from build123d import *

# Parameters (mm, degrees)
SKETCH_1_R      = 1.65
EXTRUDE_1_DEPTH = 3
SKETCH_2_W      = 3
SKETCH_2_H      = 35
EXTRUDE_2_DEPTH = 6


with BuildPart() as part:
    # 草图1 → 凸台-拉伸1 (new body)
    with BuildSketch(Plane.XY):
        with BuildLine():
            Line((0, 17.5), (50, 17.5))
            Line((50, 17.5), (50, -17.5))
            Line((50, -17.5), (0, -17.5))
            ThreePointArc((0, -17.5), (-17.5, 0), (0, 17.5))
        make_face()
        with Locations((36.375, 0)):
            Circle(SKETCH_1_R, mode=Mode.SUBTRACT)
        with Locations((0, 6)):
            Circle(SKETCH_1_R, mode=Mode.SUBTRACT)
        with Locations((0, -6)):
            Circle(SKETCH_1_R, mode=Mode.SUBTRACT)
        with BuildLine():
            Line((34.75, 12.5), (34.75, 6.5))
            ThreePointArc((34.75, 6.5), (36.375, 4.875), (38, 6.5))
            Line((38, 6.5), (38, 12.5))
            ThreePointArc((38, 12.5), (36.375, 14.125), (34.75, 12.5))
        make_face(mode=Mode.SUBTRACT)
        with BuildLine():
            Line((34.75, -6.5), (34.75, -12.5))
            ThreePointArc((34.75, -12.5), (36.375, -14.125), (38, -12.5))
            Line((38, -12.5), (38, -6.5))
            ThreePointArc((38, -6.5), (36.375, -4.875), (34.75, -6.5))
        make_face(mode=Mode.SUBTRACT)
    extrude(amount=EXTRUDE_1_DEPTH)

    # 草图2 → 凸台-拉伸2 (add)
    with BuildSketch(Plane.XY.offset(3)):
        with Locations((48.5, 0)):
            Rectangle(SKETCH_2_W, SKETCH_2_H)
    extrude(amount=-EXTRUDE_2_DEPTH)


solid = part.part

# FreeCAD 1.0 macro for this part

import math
import FreeCAD as App
import Part
import Sketcher

V = App.Vector
Q = App.Units.Quantity

doc = App.newDocument("Part")
body = doc.addObject("PartDesign::Body", "Body")

# Sketch on XY plane
sketch1 = body.newObject("Sketcher::SketchObject", "Sketch")
sketch1.AttachmentSupport = (doc.getObject("XY_Plane"), [""])
sketch1.MapMode = "FlatFace"
sketch1.addGeometry([
    Part.LineSegment(V(50, 17.5, 0), V(0, 17.5, 0)),  # 0
    Part.ArcOfCircle(Part.Circle(V(0, 0, 0), V(0, 0, 1), 17.5), math.radians(90), math.radians(270)),  # 1
    Part.LineSegment(V(0, -17.5, 0), V(50, -17.5, 0)),  # 2
    Part.LineSegment(V(50, -17.5, 0), V(50, 17.5, 0)),  # 3
    Part.ArcOfCircle(Part.Circle(V(36.375, -6.5, 0), V(0, 0, 1), 1.625), math.radians(0), math.radians(180)),  # 4
    Part.LineSegment(V(38, -6.5, 0), V(38, -12.5, 0)),  # 5
    Part.ArcOfCircle(Part.Circle(V(36.375, -12.5, 0), V(0, 0, 1), 1.625), math.radians(180), math.radians(360)),  # 6
    Part.LineSegment(V(34.75, -12.5, 0), V(34.75, -6.5, 0)),  # 7
    Part.Circle(V(0, -6, 0), V(0, 0, 1), 1.65),  # 8
    Part.Circle(V(36.375, 0, 0), V(0, 0, 1), 1.65),  # 9
    Part.ArcOfCircle(Part.Circle(V(36.375, 12.5, 0), V(0, 0, 1), 1.625), math.radians(0), math.radians(180)),  # 10
    Part.LineSegment(V(38, 12.5, 0), V(38, 6.5, 0)),  # 11
    Part.ArcOfCircle(Part.Circle(V(36.375, 6.5, 0), V(0, 0, 1), 1.625), math.radians(180), math.radians(360)),  # 12
    Part.LineSegment(V(34.75, 6.5, 0), V(34.75, 12.5, 0)),  # 13
    Part.Circle(V(0, 6, 0), V(0, 0, 1), 1.65),  # 14
], False)
sketch1.addConstraint([
    Sketcher.Constraint("Tangent", 0, 2, 1, 1),
    Sketcher.Constraint("Tangent", 1, 2, 2, 1),
    Sketcher.Constraint("Coincident", 2, 2, 3, 1),
    Sketcher.Constraint("Coincident", 3, 2, 0, 1),
    Sketcher.Constraint("Tangent", 4, 1, 5, 1),
    Sketcher.Constraint("Tangent", 5, 2, 6, 2),
    Sketcher.Constraint("Tangent", 6, 1, 7, 1),
    Sketcher.Constraint("Tangent", 7, 2, 4, 2),
    Sketcher.Constraint("Tangent", 10, 1, 11, 1),
    Sketcher.Constraint("Tangent", 11, 2, 12, 2),
    Sketcher.Constraint("Tangent", 12, 1, 13, 1),
    Sketcher.Constraint("Tangent", 13, 2, 10, 2),
    Sketcher.Constraint("Horizontal", 0),
    Sketcher.Constraint("Horizontal", 2),
    Sketcher.Constraint("Vertical", 3),
    Sketcher.Constraint("Vertical", 5),
    Sketcher.Constraint("Vertical", 7),
    Sketcher.Constraint("Vertical", 11),
    Sketcher.Constraint("Vertical", 13),
    Sketcher.Constraint("Coincident", 1, 3, -1, 1),
    Sketcher.Constraint("Equal", 8, 9),
    Sketcher.Constraint("Equal", 6, 10),
    Sketcher.Constraint("Equal", 9, 14),
    Sketcher.Constraint("Symmetric", 8, 3, 14, 3, -1, 1),
    Sketcher.Constraint("Symmetric", 6, 3, 10, 3, -1),
    Sketcher.Constraint("PointOnObject", 8, 3, -2),
    Sketcher.Constraint("PointOnObject", 9, 3, -1),
    Sketcher.Constraint("Vertical", 6, 3, 9, 3),
    Sketcher.Constraint("Equal", 7, 11),
    Sketcher.Constraint("Diameter", 8, Q("3.3 mm")),
    Sketcher.Constraint("Radius", 1, Q("17.5 mm")),
    Sketcher.Constraint("DistanceX", 0, 2, 0, 1, Q("50 mm")),
    Sketcher.Constraint("DistanceY", 5, 2, 5, 1, Q("6 mm")),
    Sketcher.Constraint("DistanceY", 8, 3, -1, 1, Q("6 mm")),
    Sketcher.Constraint("DistanceX", -1, 1, 4, 1, Q("38 mm")),
    Sketcher.Constraint("Radius", 4, Q("1.625 mm")),
    Sketcher.Constraint("DistanceY", 4, 3, 10, 3, Q("19 mm")),
])
pad1 = body.newObject("PartDesign::Pad", "Pad")
pad1.Profile = sketch1
pad1.Length = 3

# Sketch on XY plane
sketch2 = body.newObject("Sketcher::SketchObject", "Sketch001")
sketch2.AttachmentSupport = (doc.getObject("XY_Plane"), [""])
sketch2.MapMode = "FlatFace"
sketch2.AttachmentOffset = App.Placement(V(0, 0, 3), App.Rotation())
sketch2.addGeometry([
    Part.LineSegment(V(47, 17.5, 0), V(47, -17.5, 0)),
    Part.LineSegment(V(47, -17.5, 0), V(50, -17.5, 0)),
    Part.LineSegment(V(50, -17.5, 0), V(50, 17.5, 0)),
    Part.LineSegment(V(50, 17.5, 0), V(47, 17.5, 0)),
], False)
sketch2.addConstraint([
    Sketcher.Constraint("Coincident", 0, 2, 1, 1),
    Sketcher.Constraint("Coincident", 1, 2, 2, 1),
    Sketcher.Constraint("Coincident", 2, 2, 3, 1),
    Sketcher.Constraint("Coincident", 3, 2, 0, 1),
    Sketcher.Constraint("Vertical", 0),
    Sketcher.Constraint("Horizontal", 1),
    Sketcher.Constraint("Vertical", 2),
    Sketcher.Constraint("Horizontal", 3),
    Sketcher.Constraint("DistanceX", 1, 1, 1, 2, Q("3 mm")),
    Sketcher.Constraint("DistanceY", 0, 2, 0, 1, Q("35 mm")),
    Sketcher.Constraint("DistanceX", -1, 1, 0, 2, Q("47 mm")),
    Sketcher.Constraint("DistanceY", 0, 2, -1, 1, Q("17.5 mm")),
])
pad2 = body.newObject("PartDesign::Pad", "Pad001")
pad2.Profile = sketch2
pad2.Length = 6
pad2.Reversed = True

doc.recompute()
